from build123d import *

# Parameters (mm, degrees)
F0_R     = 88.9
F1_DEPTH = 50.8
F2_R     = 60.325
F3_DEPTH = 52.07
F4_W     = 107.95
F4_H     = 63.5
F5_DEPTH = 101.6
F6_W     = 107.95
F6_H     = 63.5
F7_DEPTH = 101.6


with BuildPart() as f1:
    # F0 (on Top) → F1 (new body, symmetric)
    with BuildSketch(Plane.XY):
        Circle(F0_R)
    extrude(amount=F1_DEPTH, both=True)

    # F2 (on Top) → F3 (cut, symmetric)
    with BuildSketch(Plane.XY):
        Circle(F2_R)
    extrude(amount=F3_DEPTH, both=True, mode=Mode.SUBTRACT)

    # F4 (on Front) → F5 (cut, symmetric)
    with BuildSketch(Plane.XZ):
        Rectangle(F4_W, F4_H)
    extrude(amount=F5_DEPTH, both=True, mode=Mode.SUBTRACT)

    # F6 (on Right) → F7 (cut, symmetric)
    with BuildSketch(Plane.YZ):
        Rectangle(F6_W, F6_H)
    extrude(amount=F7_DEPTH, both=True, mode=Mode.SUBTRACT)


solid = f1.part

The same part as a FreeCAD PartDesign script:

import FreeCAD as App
import Part
import Sketcher
Q = App.Units.Quantity

doc = App.newDocument("Part")
body = doc.addObject("PartDesign::Body", "Body")

# Sketch on XY plane
sketch1 = body.newObject("Sketcher::SketchObject", "Sketch")
sketch1.AttachmentSupport = (doc.getObject("XY_Plane"), [""])
sketch1.MapMode = "FlatFace"
sketch1.addGeometry(Part.Circle(App.Vector(0, 0, 0), App.Vector(0, 0, 1), 88.9), False)
sketch1.addConstraint([
    Sketcher.Constraint("Coincident", 0, 3, -1, 1),
    Sketcher.Constraint("Diameter", 0, Q("7 in")),
])
pad1 = body.newObject("PartDesign::Pad", "Pad")
pad1.Profile = sketch1
pad1.Length = Q("4 in")
pad1.Midplane = True

# Sketch on XY plane
sketch2 = body.newObject("Sketcher::SketchObject", "Sketch001")
sketch2.AttachmentSupport = (doc.getObject("XY_Plane"), [""])
sketch2.MapMode = "FlatFace"
sketch2.addGeometry(Part.Circle(App.Vector(0, 0, 0), App.Vector(0, 0, 1), 60.325), False)
sketch2.addConstraint([
    Sketcher.Constraint("Coincident", 0, 3, -1, 1),
    Sketcher.Constraint("Diameter", 0, Q("4.75 in")),
])
pocket1 = body.newObject("PartDesign::Pocket", "Pocket")
pocket1.Profile = sketch2
pocket1.Length = Q("4.1 in")
pocket1.Midplane = True

# Sketch on XZ plane
sketch3 = body.newObject("Sketcher::SketchObject", "Sketch002")
sketch3.AttachmentSupport = (doc.getObject("XZ_Plane"), [""])
sketch3.MapMode = "FlatFace"
sketch3.addGeometry([
    Part.LineSegment(App.Vector(-53.975, 31.75, 0), App.Vector(-53.975, -31.75, 0)),
    Part.LineSegment(App.Vector(-53.975, -31.75, 0), App.Vector(53.975, -31.75, 0)),
    Part.LineSegment(App.Vector(53.975, -31.75, 0), App.Vector(53.975, 31.75, 0)),
    Part.LineSegment(App.Vector(53.975, 31.75, 0), App.Vector(-53.975, 31.75, 0)),
], False)
sketch3.addConstraint([
    Sketcher.Constraint("Coincident", 0, 2, 1, 1),
    Sketcher.Constraint("Coincident", 1, 2, 2, 1),
    Sketcher.Constraint("Coincident", 2, 2, 3, 1),
    Sketcher.Constraint("Coincident", 3, 2, 0, 1),
    Sketcher.Constraint("Vertical", 0),
    Sketcher.Constraint("Horizontal", 1),
    Sketcher.Constraint("Vertical", 2),
    Sketcher.Constraint("Horizontal", 3),
    Sketcher.Constraint("Symmetric", 0, 2, 2, 2, -1, 1),
    Sketcher.Constraint("DistanceY", 0, 2, 0, 1, Q("2.5 in")),
    Sketcher.Constraint("DistanceX", 1, 1, 1, 2, Q("4.25 in")),
])
pocket2 = body.newObject("PartDesign::Pocket", "Pocket001")
pocket2.Profile = sketch3
pocket2.Length = Q("8 in")
pocket2.Midplane = True

# Sketch on YZ plane
sketch4 = body.newObject("Sketcher::SketchObject", "Sketch003")
sketch4.AttachmentSupport = (doc.getObject("YZ_Plane"), [""])
sketch4.MapMode = "FlatFace"
sketch4.addGeometry([
    Part.LineSegment(App.Vector(-53.975, 31.75, 0), App.Vector(-53.975, -31.75, 0)),
    Part.LineSegment(App.Vector(-53.975, -31.75, 0), App.Vector(53.975, -31.75, 0)),
    Part.LineSegment(App.Vector(53.975, -31.75, 0), App.Vector(53.975, 31.75, 0)),
    Part.LineSegment(App.Vector(53.975, 31.75, 0), App.Vector(-53.975, 31.75, 0)),
], False)
sketch4.addConstraint([
    Sketcher.Constraint("Coincident", 0, 2, 1, 1),
    Sketcher.Constraint("Coincident", 1, 2, 2, 1),
    Sketcher.Constraint("Coincident", 2, 2, 3, 1),
    Sketcher.Constraint("Coincident", 3, 2, 0, 1),
    Sketcher.Constraint("Vertical", 0),
    Sketcher.Constraint("Horizontal", 1),
    Sketcher.Constraint("Vertical", 2),
    Sketcher.Constraint("Horizontal", 3),
    Sketcher.Constraint("Symmetric", 0, 2, 2, 2, -1, 1),
    Sketcher.Constraint("DistanceY", 0, 2, 0, 1, Q("2.5 in")),
    Sketcher.Constraint("DistanceX", 1, 1, 1, 2, Q("4.25 in")),
])
pocket3 = body.newObject("PartDesign::Pocket", "Pocket002")
pocket3.Profile = sketch4
pocket3.Length = Q("8 in")
pocket3.Midplane = True

doc.recompute()
